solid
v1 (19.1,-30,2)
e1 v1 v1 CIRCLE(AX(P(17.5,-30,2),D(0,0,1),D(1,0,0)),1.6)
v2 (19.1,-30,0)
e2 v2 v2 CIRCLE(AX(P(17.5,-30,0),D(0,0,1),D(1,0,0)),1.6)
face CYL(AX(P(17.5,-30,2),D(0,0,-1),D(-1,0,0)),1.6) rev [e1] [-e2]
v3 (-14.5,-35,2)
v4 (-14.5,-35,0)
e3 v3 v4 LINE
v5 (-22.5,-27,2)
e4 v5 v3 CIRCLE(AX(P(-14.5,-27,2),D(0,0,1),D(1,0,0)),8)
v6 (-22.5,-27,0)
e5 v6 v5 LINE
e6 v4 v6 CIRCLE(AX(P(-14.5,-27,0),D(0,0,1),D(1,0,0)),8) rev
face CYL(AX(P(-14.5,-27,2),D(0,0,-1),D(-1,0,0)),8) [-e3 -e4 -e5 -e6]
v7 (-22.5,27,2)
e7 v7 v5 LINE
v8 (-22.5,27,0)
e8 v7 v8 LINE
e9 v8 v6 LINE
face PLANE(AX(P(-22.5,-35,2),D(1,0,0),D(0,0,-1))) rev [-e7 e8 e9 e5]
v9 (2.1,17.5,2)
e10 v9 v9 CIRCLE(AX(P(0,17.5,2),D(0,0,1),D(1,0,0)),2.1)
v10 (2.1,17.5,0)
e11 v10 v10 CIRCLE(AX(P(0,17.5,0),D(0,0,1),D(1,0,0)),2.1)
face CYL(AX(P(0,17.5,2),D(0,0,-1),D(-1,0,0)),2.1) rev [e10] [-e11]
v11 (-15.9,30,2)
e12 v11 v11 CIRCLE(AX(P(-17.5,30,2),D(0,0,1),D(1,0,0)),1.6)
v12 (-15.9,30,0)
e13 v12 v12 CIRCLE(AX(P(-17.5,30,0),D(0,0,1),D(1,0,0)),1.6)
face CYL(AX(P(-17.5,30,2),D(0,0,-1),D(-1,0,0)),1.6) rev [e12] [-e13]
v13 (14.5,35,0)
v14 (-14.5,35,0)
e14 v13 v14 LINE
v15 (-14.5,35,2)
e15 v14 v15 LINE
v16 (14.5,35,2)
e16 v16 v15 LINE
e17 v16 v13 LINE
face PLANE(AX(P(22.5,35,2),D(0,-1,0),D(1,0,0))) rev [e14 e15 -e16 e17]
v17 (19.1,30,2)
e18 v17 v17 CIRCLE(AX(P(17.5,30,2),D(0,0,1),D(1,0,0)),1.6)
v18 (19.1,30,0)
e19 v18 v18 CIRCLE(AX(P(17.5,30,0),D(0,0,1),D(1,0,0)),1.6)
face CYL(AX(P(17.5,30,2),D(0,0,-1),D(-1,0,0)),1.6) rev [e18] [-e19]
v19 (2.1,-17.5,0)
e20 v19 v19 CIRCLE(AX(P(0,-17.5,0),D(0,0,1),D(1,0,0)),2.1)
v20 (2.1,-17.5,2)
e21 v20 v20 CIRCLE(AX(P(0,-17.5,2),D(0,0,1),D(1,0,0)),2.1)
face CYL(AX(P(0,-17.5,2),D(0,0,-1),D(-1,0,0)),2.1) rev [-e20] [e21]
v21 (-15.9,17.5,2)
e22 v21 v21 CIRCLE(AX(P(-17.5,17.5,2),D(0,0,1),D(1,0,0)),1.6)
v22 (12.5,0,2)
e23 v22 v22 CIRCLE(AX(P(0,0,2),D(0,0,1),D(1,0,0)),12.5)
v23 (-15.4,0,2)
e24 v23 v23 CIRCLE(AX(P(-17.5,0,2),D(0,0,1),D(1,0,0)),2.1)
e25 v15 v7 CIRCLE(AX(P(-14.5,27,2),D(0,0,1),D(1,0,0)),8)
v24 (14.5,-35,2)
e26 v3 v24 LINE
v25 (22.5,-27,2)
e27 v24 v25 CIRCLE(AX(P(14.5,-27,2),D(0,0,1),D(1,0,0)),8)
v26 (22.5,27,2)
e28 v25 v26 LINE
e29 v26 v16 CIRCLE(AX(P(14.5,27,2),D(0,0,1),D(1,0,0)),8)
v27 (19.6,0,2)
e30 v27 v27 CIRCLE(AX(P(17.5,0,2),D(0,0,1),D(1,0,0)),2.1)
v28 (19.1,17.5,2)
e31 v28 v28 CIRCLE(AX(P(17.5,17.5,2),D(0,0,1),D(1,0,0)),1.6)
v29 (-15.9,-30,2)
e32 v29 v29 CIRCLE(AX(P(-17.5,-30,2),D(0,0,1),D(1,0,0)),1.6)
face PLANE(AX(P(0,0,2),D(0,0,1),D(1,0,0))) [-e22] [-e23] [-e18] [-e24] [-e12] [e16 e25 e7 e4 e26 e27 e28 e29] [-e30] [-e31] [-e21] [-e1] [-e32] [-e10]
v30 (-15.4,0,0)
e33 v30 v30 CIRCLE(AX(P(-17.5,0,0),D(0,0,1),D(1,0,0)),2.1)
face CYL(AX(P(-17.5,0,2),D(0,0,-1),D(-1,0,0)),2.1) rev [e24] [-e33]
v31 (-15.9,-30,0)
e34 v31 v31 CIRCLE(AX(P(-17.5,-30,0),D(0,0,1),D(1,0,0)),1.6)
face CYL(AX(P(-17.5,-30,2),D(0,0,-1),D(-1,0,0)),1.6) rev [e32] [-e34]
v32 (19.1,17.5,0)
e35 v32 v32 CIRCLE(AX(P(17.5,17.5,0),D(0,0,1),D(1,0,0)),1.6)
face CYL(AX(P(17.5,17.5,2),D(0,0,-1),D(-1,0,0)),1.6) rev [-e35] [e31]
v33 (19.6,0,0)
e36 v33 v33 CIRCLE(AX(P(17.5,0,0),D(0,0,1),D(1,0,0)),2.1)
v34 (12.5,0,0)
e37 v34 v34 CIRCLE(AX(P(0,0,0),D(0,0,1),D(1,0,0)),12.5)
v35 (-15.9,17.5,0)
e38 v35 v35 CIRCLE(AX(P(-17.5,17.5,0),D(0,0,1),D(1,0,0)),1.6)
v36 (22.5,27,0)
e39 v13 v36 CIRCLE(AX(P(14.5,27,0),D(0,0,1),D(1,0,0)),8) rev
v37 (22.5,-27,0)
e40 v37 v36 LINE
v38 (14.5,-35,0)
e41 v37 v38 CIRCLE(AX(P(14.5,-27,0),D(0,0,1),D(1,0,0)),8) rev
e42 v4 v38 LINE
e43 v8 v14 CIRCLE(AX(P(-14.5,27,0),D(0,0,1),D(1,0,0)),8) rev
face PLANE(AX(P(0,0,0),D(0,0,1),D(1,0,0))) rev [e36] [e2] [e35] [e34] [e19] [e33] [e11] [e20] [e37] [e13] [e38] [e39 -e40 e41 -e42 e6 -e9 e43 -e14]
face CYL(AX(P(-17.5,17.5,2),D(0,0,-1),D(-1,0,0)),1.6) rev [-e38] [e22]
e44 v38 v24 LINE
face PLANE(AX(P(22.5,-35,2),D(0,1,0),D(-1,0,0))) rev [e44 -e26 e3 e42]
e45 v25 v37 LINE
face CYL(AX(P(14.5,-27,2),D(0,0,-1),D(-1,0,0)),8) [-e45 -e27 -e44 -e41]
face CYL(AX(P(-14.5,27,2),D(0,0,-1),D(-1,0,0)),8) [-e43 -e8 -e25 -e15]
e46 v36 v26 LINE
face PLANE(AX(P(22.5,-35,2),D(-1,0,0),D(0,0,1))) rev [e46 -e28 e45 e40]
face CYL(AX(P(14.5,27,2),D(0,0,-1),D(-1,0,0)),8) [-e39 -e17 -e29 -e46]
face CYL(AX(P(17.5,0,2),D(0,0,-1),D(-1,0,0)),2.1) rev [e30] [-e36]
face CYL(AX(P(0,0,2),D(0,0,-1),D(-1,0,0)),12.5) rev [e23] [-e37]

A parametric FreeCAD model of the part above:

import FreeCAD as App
import Part
import Sketcher


def edges_at(feature, points):
    """Names of the edges that pass closest to the given points."""
    edges = feature.Shape.Edges
    near = lambda p: min(range(len(edges)), key=lambda i: edges[i].distToShape(Part.Vertex(*p))[0])
    return sorted({f"Edge{near(p) + 1}" for p in points})

doc = App.newDocument("Part")
body = doc.addObject("PartDesign::Body", "Body")

# Sketch on XY plane
sketch1 = body.newObject("Sketcher::SketchObject", "Sketch")
sketch1.AttachmentSupport = (doc.getObject("XY_Plane"), [""])
sketch1.MapMode = "FlatFace"
sketch1.addGeometry([
    Part.LineSegment(App.Vector(-22.5, 35, 0), App.Vector(-22.5, -35, 0)),  # 0
    Part.LineSegment(App.Vector(-22.5, -35, 0), App.Vector(22.5, -35, 0)),  # 1
    Part.LineSegment(App.Vector(22.5, -35, 0), App.Vector(22.5, 35, 0)),  # 2
    Part.LineSegment(App.Vector(22.5, 35, 0), App.Vector(-22.5, 35, 0)),  # 3
    Part.Circle(App.Vector(-17.5, -30, 0), App.Vector(0, 0, 1), 1.6),  # 4
    Part.Circle(App.Vector(-17.5, 0, 0), App.Vector(0, 0, 1), 2.1),  # 5
    Part.Circle(App.Vector(0, -17.5, 0), App.Vector(0, 0, 1), 2.1),  # 6
    Part.Circle(App.Vector(17.5, -30, 0), App.Vector(0, 0, 1), 1.6),  # 7
    Part.Circle(App.Vector(0, 0, 0), App.Vector(0, 0, 1), 12.5),  # 8
    Part.Circle(App.Vector(17.5, 0, 0), App.Vector(0, 0, 1), 2.1),  # 9
    Part.Circle(App.Vector(-17.5, 17.5, 0), App.Vector(0, 0, 1), 1.6),  # 10
    Part.Circle(App.Vector(-17.5, 30, 0), App.Vector(0, 0, 1), 1.6),  # 11
    Part.Circle(App.Vector(0, 17.5, 0), App.Vector(0, 0, 1), 2.1),  # 12
    Part.Circle(App.Vector(17.5, 17.5, 0), App.Vector(0, 0, 1), 1.6),  # 13
    Part.Circle(App.Vector(17.5, 30, 0), App.Vector(0, 0, 1), 1.6),  # 14
], False)
sketch1.addConstraint([
    Sketcher.Constraint("Coincident", 0, 2, 1, 1),
    Sketcher.Constraint("Coincident", 1, 2, 2, 1),
    Sketcher.Constraint("Coincident", 2, 2, 3, 1),
    Sketcher.Constraint("Coincident", 3, 2, 0, 1),
    Sketcher.Constraint("Vertical", 0),
    Sketcher.Constraint("Horizontal", 1),
    Sketcher.Constraint("Vertical", 2),
    Sketcher.Constraint("Horizontal", 3),
    Sketcher.Constraint("Coincident", 8, 3, -1, 1),
    Sketcher.Constraint("Equal", 5, 6),
    Sketcher.Constraint("Equal", 4, 7),
    Sketcher.Constraint("Equal", 6, 9),
    Sketcher.Constraint("Equal", 7, 10),
    Sketcher.Constraint("Equal", 10, 11),
    Sketcher.Constraint("Equal", 9, 12),
    Sketcher.Constraint("Equal", 11, 13),
    Sketcher.Constraint("Equal", 13, 14),
    Sketcher.Constraint("Symmetric", 5, 3, 9, 3, -1, 1),
    Sketcher.Constraint("Symmetric", 7, 3, 11, 3, -1, 1),
    Sketcher.Constraint("Symmetric", 6, 3, 12, 3, -1, 1),
    Sketcher.Constraint("Symmetric", 4, 3, 14, 3, -1, 1),
    Sketcher.Constraint("Symmetric", 0, 2, 2, 2, -1, 1),
    Sketcher.Constraint("Symmetric", 4, 3, 7, 3, -2),
    Sketcher.Constraint("Symmetric", 10, 3, 13, 3, -2),
    Sketcher.Constraint("PointOnObject", 5, 3, -1),
    Sketcher.Constraint("PointOnObject", 6, 3, -2),
    Sketcher.Constraint("Horizontal", 10, 3, 12, 3),
    Sketcher.Constraint("Vertical", 4, 3, 5, 3),
    Sketcher.Constraint("Vertical", 5, 3, 10, 3),
    Sketcher.Constraint("Diameter", 8, 25.0),
    Sketcher.Constraint("Diameter", 4, 3.2),
    Sketcher.Constraint("Diameter", 5, 4.2),
    Sketcher.Constraint("DistanceX", 1, 1, 1, 2, 45.0),
    Sketcher.Constraint("DistanceY", 0, 2, 0, 1, 70.0),
    Sketcher.Constraint("DistanceY", 4, 3, -1, 1, 30.0),
    Sketcher.Constraint("DistanceX", 4, 3, 7, 3, 35.0),
    Sketcher.Constraint("DistanceY", 6, 3, 10, 3, 35.0),
])
pad1 = body.newObject("PartDesign::Pad", "Pad")
pad1.Profile = sketch1
pad1.Length = 2
doc.recompute()

fillet = body.newObject("PartDesign::Fillet", "Fillet")
fillet.Base = (pad1, edges_at(pad1, [
    (-22.5, 35, 1),
    (22.5, 35, 1),
    (22.5, -35, 1),
    (-22.5, -35, 1),
]))
fillet.Radius = 8

doc.recompute()
